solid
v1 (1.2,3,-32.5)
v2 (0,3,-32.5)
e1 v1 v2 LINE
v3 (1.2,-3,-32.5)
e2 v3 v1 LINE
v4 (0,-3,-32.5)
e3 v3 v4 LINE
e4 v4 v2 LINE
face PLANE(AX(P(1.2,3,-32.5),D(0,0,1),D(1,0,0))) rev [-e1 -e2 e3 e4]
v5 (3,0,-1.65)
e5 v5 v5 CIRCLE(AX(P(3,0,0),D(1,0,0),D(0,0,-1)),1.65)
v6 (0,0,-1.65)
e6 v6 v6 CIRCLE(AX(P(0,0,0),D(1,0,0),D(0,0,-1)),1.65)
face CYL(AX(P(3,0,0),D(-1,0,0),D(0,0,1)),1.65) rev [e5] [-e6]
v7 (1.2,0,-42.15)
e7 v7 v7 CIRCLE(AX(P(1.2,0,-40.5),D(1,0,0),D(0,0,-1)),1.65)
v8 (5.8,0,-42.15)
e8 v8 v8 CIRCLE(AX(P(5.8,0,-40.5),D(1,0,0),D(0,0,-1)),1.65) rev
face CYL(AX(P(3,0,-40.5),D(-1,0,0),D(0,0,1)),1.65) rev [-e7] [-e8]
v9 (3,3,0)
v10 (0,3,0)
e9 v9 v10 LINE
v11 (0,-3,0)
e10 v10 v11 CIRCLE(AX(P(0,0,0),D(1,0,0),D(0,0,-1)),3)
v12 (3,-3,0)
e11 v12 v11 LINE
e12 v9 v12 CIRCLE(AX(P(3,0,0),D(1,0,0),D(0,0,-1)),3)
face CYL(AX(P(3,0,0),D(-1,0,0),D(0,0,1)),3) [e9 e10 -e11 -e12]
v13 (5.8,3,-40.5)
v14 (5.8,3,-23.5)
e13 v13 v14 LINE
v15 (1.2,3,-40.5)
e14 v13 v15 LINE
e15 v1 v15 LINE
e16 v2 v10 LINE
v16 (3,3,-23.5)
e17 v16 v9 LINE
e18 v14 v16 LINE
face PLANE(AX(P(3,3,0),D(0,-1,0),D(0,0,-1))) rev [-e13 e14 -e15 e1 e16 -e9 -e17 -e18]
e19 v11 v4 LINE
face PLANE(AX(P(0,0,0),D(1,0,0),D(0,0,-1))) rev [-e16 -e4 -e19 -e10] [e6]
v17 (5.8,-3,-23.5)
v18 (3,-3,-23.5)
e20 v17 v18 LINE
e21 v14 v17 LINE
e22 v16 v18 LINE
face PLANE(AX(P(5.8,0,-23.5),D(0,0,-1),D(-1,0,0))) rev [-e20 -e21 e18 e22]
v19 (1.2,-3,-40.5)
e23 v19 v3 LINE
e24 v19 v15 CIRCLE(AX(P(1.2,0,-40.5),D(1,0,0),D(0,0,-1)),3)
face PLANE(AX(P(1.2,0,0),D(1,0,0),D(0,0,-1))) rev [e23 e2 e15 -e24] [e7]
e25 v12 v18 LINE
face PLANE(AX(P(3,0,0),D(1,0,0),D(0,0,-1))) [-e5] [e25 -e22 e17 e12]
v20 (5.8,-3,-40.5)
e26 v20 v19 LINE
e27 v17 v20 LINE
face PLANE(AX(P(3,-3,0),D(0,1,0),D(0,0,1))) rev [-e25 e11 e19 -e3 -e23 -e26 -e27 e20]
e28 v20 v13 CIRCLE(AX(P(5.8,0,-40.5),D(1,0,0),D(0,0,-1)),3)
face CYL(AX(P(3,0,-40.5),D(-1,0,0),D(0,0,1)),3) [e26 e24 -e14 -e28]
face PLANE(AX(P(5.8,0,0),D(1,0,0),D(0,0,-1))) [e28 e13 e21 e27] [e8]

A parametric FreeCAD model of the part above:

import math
import FreeCAD as App
import Part
import Sketcher

doc = App.newDocument("Part")
params = doc.addObject("Spreadsheet::Sheet", "Params")
for row, (alias, value) in enumerate([
    ("sketch1_radius", "3 mm"),
    ("sketch1_diameter", "3.3 mm"),
    ("sketch1_height", "40.5 mm"),
    ("pad1_length", "3 mm"),
    ("sketch2_width", "6 mm"),
    ("sketch2_height", "11 mm"),
    ("pocket1_length", "1.2 mm"),
    ("sketch3_radius", "3 mm"),
    ("sketch3_diameter", "3.3 mm"),
    ("sketch3_height", "17 mm"),
    ("pad2_length", "2.8 mm"),
], start=1):
    params.set(f"A{row}", alias)
    params.set(f"B{row}", "=" + value)
    params.setAlias(f"B{row}", alias)

body = doc.addObject("PartDesign::Body", "Body")

# Sketch on YZ plane
sketch1 = body.newObject("Sketcher::SketchObject", "Sketch")
sketch1.AttachmentSupport = (doc.getObject("YZ_Plane"), [""])
sketch1.MapMode = "FlatFace"
sketch1.addGeometry(Part.LineSegment(App.Vector(3, -40.5, 0), App.Vector(3, 0, 0)), False)
sketch1.addGeometry(Part.ArcOfCircle(Part.Circle(App.Vector(0, 0, 0), App.Vector(0, 0, 1), 3), math.radians(0), math.radians(180)), False)
sketch1.addGeometry(Part.LineSegment(App.Vector(-3, 0, 0), App.Vector(-3, -40.5, 0)), False)
sketch1.addGeometry(Part.ArcOfCircle(Part.Circle(App.Vector(0, -40.5, 0), App.Vector(0, 0, 1), 3), math.radians(180), math.radians(360)), False)
sketch1.addGeometry(Part.Circle(App.Vector(0, -40.5, 0), App.Vector(0, 0, 1), 1.6), False)
sketch1.addGeometry(Part.Circle(App.Vector(0, 0, 0), App.Vector(0, 0, 1), 1.6), False)
sketch1.addConstraint(Sketcher.Constraint("Tangent", 0, 2, 1, 1))
sketch1.addConstraint(Sketcher.Constraint("Tangent", 1, 2, 2, 1))
sketch1.addConstraint(Sketcher.Constraint("Tangent", 2, 2, 3, 1))
sketch1.addConstraint(Sketcher.Constraint("Tangent", 3, 2, 0, 1))
sketch1.addConstraint(Sketcher.Constraint("Vertical", 0))
sketch1.addConstraint(Sketcher.Constraint("Vertical", 2))
sketch1.addConstraint(Sketcher.Constraint("Coincident", 1, 3, -1, 1))
sketch1.addConstraint(Sketcher.Constraint("Coincident", 5, 3, -1, 1))
sketch1.addConstraint(Sketcher.Constraint("Coincident", 4, 3, 3, 3))
sketch1.addConstraint(Sketcher.Constraint("Equal", 4, 5))
sketch1.addConstraint(Sketcher.Constraint("Radius", 1, 3.0))
sketch1.addConstraint(Sketcher.Constraint("Diameter", 4, 3.3))
sketch1.addConstraint(Sketcher.Constraint("DistanceY", 0, 1, 0, 2, 40.5))
sketch1.setExpression("Constraints[10]", "Params.sketch1_radius")
sketch1.setExpression("Constraints[11]", "Params.sketch1_diameter")
sketch1.setExpression("Constraints[12]", "Params.sketch1_height")
pad1 = body.newObject("PartDesign::Pad", "Pad")
pad1.Profile = sketch1
pad1.setExpression("Length", "Params.pad1_length")

# Sketch on YZ plane
sketch2 = body.newObject("Sketcher::SketchObject", "Sketch001")
sketch2.AttachmentSupport = (doc.getObject("YZ_Plane"), [""])
sketch2.MapMode = "FlatFace"
sketch2.addGeometry(Part.LineSegment(App.Vector(3, -44, 0), App.Vector(-3, -44, 0)), False)
sketch2.addGeometry(Part.LineSegment(App.Vector(-3, -44, 0), App.Vector(-3, -32, 0)), False)
sketch2.addGeometry(Part.LineSegment(App.Vector(-3, -32, 0), App.Vector(3, -32, 0)), False)
sketch2.addGeometry(Part.LineSegment(App.Vector(3, -32, 0), App.Vector(3, -44, 0)), False)
sketch2.addConstraint(Sketcher.Constraint("Coincident", 0, 2, 1, 1))
sketch2.addConstraint(Sketcher.Constraint("Coincident", 1, 2, 2, 1))
sketch2.addConstraint(Sketcher.Constraint("Coincident", 2, 2, 3, 1))
sketch2.addConstraint(Sketcher.Constraint("Coincident", 3, 2, 0, 1))
sketch2.addConstraint(Sketcher.Constraint("Horizontal", 0))
sketch2.addConstraint(Sketcher.Constraint("Vertical", 1))
sketch2.addConstraint(Sketcher.Constraint("Horizontal", 2))
sketch2.addConstraint(Sketcher.Constraint("Vertical", 3))
sketch2.addConstraint(Sketcher.Constraint("DistanceX", 0, 2, 0, 1, 6.0))
sketch2.addConstraint(Sketcher.Constraint("DistanceY", 1, 1, 1, 2, 11.0))
sketch2.addConstraint(Sketcher.Constraint("DistanceX", 0, 2, -1, 1, 3.0))
sketch2.addConstraint(Sketcher.Constraint("DistanceY", 0, 2, -1, 1, 43.5))
sketch2.setExpression("Constraints[8]", "Params.sketch2_width")
sketch2.setExpression("Constraints[9]", "Params.sketch2_height")
pocket1 = body.newObject("PartDesign::Pocket", "Pocket")
pocket1.Profile = sketch2
pocket1.setExpression("Length", "Params.pocket1_length")
pocket1.Reversed = True

# Sketch on YZ plane
sketch3 = body.newObject("Sketcher::SketchObject", "Sketch002")
sketch3.AttachmentSupport = (doc.getObject("YZ_Plane"), [""])
sketch3.MapMode = "FlatFace"
sketch3.AttachmentOffset = App.Placement(App.Vector(0, 0, 3), App.Rotation())
sketch3.addGeometry(Part.LineSegment(App.Vector(3, -40.5, 0), App.Vector(3, -23.5, 0)), False)
sketch3.addGeometry(Part.LineSegment(App.Vector(3, -23.5, 0), App.Vector(-3, -23.5, 0)), False)
sketch3.addGeometry(Part.LineSegment(App.Vector(-3, -23.5, 0), App.Vector(-3, -40.5, 0)), False)
sketch3.addGeometry(Part.ArcOfCircle(Part.Circle(App.Vector(0, -40.5, 0), App.Vector(0, 0, 1), 3), math.radians(180), math.radians(360)), False)
sketch3.addGeometry(Part.Circle(App.Vector(0, -40.5, 0), App.Vector(0, 0, 1), 1.6), False)
sketch3.addConstraint(Sketcher.Constraint("Coincident", 0, 2, 1, 1))
sketch3.addConstraint(Sketcher.Constraint("Coincident", 1, 2, 2, 1))
sketch3.addConstraint(Sketcher.Constraint("Tangent", 2, 2, 3, 1))
sketch3.addConstraint(Sketcher.Constraint("Tangent", 3, 2, 0, 1))
sketch3.addConstraint(Sketcher.Constraint("Vertical", 0))
sketch3.addConstraint(Sketcher.Constraint("Horizontal", 1))
sketch3.addConstraint(Sketcher.Constraint("Vertical", 2))
sketch3.addConstraint(Sketcher.Constraint("Coincident", 4, 3, 3, 3))
sketch3.addConstraint(Sketcher.Constraint("PointOnObject", 3, 3, -2))
sketch3.addConstraint(Sketcher.Constraint("Radius", 3, 3.0))
sketch3.addConstraint(Sketcher.Constraint("Diameter", 4, 3.3))
sketch3.addConstraint(Sketcher.Constraint("DistanceY", 0, 1, 0, 2, 17.0))
sketch3.addConstraint(Sketcher.Constraint("DistanceY", 3, 3, -1, 1, 40.5))
sketch3.setExpression("Constraints[9]", "Params.sketch3_radius")
sketch3.setExpression("Constraints[10]", "Params.sketch3_diameter")
sketch3.setExpression("Constraints[11]", "Params.sketch3_height")
pad2 = body.newObject("PartDesign::Pad", "Pad001")
pad2.Profile = sketch3
pad2.setExpression("Length", "Params.pad2_length")

doc.recompute()
